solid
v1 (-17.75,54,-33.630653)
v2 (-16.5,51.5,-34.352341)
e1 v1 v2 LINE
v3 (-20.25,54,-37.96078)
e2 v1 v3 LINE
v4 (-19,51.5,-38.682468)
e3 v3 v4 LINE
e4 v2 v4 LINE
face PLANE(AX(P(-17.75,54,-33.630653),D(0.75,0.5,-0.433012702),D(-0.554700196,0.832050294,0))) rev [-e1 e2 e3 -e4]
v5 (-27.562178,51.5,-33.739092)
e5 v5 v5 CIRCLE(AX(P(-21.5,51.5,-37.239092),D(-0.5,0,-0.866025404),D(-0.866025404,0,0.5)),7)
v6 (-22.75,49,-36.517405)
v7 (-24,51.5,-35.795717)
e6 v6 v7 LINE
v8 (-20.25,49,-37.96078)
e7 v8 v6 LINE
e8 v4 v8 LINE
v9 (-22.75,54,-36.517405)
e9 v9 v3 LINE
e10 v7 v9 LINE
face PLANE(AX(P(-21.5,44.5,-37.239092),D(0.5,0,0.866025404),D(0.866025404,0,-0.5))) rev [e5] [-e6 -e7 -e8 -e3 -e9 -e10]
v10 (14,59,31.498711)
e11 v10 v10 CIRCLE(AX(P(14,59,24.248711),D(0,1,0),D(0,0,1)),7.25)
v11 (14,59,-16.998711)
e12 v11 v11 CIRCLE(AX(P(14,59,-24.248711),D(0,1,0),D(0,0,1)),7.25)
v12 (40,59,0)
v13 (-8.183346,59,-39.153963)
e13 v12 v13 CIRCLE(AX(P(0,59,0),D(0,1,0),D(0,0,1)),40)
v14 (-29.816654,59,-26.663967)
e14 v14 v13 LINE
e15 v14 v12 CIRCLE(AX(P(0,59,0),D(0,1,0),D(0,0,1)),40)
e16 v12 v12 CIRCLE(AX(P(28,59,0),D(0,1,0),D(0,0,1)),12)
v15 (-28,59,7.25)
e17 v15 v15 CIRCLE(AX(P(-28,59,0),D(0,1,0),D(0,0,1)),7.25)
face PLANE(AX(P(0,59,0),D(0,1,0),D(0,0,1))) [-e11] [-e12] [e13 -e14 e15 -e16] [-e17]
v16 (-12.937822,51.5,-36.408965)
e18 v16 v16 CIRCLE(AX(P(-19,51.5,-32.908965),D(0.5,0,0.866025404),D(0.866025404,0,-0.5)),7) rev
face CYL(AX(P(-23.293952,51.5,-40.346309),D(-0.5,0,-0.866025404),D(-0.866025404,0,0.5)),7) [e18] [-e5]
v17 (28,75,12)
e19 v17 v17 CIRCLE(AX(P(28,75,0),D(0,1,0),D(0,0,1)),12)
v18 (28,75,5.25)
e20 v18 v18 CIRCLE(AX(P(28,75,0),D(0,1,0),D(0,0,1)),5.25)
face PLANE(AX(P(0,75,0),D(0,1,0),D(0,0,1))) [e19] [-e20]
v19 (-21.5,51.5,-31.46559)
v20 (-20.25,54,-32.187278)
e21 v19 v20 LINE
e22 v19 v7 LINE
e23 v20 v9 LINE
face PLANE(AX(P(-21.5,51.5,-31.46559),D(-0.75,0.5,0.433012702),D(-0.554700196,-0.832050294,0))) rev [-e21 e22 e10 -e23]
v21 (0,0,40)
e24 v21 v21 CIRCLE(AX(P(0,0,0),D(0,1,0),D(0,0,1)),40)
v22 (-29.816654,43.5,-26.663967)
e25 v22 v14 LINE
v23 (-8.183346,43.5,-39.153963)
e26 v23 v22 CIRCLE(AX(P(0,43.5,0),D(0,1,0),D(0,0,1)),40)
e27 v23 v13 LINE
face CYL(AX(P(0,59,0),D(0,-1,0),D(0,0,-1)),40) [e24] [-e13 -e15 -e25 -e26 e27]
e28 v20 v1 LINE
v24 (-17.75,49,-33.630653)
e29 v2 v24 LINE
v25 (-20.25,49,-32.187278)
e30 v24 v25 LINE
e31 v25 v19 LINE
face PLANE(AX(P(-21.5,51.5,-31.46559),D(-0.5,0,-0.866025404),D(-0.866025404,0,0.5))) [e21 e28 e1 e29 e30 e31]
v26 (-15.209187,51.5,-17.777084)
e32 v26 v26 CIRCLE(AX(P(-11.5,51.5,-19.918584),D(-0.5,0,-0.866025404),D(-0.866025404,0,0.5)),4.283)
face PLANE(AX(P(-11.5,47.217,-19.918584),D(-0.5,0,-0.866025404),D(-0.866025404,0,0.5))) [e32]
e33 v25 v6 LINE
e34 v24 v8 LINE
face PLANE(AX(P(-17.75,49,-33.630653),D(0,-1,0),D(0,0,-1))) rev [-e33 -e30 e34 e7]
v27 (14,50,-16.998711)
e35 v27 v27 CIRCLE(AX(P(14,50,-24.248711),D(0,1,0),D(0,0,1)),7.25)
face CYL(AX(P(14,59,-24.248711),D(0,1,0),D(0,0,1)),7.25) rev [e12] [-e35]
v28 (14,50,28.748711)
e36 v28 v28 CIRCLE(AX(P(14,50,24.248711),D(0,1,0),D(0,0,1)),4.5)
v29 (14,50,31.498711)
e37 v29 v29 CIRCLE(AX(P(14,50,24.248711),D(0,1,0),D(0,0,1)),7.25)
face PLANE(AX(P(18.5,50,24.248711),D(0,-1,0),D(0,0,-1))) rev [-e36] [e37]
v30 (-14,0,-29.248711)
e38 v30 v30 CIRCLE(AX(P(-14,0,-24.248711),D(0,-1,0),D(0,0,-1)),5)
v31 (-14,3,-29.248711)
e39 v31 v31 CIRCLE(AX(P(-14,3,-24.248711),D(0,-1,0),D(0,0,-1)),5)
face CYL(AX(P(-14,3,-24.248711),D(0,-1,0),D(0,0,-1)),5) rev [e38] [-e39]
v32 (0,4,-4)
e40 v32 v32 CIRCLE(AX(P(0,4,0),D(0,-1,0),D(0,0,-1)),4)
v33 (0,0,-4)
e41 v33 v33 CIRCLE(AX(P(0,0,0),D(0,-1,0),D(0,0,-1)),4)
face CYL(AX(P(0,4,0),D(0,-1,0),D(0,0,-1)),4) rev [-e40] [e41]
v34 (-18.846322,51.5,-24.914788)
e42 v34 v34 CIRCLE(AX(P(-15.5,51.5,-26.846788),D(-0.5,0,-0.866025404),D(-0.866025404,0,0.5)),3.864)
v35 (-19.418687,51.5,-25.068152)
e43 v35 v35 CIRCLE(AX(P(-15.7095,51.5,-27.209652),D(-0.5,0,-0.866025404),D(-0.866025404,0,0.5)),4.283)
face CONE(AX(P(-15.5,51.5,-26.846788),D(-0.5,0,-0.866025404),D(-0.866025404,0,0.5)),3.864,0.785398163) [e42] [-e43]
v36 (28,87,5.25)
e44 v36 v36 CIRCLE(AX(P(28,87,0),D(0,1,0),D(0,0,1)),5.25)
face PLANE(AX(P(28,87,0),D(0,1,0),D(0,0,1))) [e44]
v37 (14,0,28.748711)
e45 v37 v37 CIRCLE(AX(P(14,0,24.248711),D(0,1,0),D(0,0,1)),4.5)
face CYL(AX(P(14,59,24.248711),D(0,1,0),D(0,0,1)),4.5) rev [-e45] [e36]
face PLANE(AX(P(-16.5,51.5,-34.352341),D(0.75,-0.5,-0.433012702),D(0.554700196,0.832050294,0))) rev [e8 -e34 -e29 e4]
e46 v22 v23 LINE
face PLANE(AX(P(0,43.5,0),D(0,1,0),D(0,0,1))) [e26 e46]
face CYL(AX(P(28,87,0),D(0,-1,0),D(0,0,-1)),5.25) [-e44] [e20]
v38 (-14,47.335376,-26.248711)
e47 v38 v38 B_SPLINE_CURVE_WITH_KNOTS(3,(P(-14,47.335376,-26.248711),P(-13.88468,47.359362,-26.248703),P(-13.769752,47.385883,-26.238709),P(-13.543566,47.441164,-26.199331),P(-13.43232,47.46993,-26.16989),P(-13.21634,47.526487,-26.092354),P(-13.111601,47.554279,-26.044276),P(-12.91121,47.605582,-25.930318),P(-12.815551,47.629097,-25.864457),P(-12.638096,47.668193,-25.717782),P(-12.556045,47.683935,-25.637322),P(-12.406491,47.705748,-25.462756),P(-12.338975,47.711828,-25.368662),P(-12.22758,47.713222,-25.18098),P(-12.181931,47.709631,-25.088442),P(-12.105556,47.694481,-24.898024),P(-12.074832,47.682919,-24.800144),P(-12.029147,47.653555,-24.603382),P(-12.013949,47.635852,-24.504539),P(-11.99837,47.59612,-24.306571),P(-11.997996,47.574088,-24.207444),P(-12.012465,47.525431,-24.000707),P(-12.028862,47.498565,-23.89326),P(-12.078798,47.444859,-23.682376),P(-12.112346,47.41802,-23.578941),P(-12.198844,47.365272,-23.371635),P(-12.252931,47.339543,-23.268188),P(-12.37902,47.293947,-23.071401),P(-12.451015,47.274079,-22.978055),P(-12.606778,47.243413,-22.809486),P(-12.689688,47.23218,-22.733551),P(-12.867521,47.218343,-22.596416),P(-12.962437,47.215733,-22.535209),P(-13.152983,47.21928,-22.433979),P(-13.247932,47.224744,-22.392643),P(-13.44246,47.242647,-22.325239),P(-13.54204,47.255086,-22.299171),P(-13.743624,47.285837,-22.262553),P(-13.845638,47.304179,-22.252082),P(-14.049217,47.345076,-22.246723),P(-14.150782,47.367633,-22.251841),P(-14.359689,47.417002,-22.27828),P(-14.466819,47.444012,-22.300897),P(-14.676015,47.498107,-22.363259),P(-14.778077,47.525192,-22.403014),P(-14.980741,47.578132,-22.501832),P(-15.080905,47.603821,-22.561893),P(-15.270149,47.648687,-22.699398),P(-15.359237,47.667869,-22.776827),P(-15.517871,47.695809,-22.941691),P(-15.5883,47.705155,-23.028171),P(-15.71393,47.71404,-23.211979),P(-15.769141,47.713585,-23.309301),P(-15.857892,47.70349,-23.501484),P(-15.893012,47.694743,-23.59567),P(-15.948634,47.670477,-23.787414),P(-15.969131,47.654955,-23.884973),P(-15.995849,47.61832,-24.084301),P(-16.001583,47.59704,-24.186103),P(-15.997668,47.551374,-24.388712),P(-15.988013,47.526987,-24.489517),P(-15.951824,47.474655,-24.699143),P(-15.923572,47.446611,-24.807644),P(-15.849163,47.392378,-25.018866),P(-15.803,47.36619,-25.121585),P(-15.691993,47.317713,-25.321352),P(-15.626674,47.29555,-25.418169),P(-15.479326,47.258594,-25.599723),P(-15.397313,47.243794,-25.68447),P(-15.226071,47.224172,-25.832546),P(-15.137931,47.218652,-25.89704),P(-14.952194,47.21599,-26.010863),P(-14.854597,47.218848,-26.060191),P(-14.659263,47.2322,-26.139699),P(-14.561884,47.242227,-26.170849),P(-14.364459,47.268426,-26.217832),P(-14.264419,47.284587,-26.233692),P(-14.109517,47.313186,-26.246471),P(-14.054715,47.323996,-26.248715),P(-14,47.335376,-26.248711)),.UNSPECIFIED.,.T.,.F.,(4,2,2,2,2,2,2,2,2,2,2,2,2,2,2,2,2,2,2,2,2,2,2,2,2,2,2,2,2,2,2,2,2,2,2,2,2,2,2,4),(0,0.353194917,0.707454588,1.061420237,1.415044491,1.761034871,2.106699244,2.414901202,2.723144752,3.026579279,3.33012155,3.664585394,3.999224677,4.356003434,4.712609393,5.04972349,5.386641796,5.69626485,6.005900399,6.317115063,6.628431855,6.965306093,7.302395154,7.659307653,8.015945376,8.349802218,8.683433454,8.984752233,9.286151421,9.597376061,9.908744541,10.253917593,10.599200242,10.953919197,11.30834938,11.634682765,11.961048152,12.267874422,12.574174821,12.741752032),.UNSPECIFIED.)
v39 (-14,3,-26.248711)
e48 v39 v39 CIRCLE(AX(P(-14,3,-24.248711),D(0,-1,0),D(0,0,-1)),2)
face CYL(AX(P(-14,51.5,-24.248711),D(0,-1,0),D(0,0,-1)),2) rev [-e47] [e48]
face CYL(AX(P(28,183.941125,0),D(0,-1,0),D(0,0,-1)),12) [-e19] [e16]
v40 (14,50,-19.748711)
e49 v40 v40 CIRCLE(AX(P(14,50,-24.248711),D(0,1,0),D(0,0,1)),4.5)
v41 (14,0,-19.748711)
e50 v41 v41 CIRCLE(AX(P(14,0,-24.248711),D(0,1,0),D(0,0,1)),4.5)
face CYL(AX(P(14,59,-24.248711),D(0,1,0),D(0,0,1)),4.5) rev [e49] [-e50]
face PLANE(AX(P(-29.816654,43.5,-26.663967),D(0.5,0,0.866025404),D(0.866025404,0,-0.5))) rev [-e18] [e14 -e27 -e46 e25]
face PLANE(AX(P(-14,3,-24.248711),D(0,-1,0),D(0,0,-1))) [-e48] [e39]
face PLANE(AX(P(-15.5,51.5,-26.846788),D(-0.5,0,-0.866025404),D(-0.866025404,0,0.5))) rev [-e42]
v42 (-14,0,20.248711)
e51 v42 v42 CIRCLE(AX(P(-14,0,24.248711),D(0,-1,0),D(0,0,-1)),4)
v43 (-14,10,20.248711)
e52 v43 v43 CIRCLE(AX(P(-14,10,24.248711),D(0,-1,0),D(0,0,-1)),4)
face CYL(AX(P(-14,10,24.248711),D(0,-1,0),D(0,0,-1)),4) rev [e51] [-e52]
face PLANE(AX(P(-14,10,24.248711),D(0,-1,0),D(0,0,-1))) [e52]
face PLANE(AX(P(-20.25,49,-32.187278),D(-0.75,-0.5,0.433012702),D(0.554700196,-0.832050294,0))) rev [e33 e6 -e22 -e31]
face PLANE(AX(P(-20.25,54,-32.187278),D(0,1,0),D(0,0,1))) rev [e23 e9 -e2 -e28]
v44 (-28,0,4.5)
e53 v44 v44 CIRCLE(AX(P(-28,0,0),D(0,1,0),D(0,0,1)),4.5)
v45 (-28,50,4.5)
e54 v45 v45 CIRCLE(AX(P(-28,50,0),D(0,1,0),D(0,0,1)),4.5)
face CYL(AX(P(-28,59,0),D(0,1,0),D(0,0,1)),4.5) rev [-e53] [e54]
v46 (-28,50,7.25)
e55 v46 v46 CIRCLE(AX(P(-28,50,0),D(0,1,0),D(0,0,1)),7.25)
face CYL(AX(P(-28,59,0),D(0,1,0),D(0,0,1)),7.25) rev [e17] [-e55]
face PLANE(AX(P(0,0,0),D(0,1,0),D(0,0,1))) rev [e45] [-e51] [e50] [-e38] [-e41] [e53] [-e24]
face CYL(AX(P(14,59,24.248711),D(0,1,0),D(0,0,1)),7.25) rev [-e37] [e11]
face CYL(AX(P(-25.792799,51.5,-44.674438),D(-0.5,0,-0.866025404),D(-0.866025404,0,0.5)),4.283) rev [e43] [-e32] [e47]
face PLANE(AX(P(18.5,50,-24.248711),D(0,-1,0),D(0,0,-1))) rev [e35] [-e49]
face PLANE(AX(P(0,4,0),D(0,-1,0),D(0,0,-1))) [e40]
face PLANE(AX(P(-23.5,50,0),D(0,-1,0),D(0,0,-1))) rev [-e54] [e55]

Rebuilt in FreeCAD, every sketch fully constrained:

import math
import FreeCAD as App
import Part
import Sketcher
Q = App.Units.Quantity


def add_polygon(sketch, points):
    """Adds a closed chain of lines whose ends are joined by coincident constraints."""
    first, n = sketch.GeometryCount, len(points)
    for a, b in zip(points, points[1:] + points[:1]):
        sketch.addGeometry(Part.LineSegment(App.Vector(*a, 0), App.Vector(*b, 0)), False)
    for i in range(n):
        sketch.addConstraint(Sketcher.Constraint("Coincident", first + i, 2, first + (i + 1) % n, 1))

doc = App.newDocument("Part")
body = doc.addObject("PartDesign::Body", "Body")

sketch1 = body.newObject("Sketcher::SketchObject", "Sketch")
sketch1.AttachmentSupport = (doc.getObject("XZ_Plane"), [""])
sketch1.MapMode = "FlatFace"
sketch1.addGeometry(Part.Circle(App.Vector(0, 0, 0), App.Vector(0, 0, 1), 40), False)
sketch1.addConstraint([
    Sketcher.Constraint("Coincident", 0, 3, -1, 1),
    Sketcher.Constraint("Diameter", 0, 80.0),
])
pad1 = body.newObject("PartDesign::Pad", "Pad")
pad1.Profile = sketch1
pad1.Length = 59
pad1.Reversed = True

sketch2 = body.newObject("Sketcher::SketchObject", "Sketch001")
sketch2.AttachmentSupport = (doc.getObject("XZ_Plane"), [""])
sketch2.MapMode = "FlatFace"
sketch2.AttachmentOffset = App.Placement(App.Vector(0, 0, -59), App.Rotation())
sketch2.addGeometry(Part.Circle(App.Vector(28, 0, 0), App.Vector(0, 0, 1), 12), False)
sketch2.addConstraint([
    Sketcher.Constraint("PointOnObject", 0, 3, -1),
    Sketcher.Constraint("Diameter", 0, 24.0),
    Sketcher.Constraint("DistanceX", -1, 1, 0, 3, 28.0),
])
pad2 = body.newObject("PartDesign::Pad", "Pad001")
pad2.Profile = sketch2
pad2.Length = 16
pad2.Reversed = True

sketch3 = body.newObject("Sketcher::SketchObject", "Sketch002")
sketch3.AttachmentSupport = (doc.getObject("XZ_Plane"), [""])
sketch3.MapMode = "FlatFace"
sketch3.AttachmentOffset = App.Placement(App.Vector(0, 0, -75), App.Rotation())
sketch3.addGeometry(Part.Circle(App.Vector(28, 0, 0), App.Vector(0, 0, 1), 5.25), False)
sketch3.addConstraint([
    Sketcher.Constraint("PointOnObject", 0, 3, -1),
    Sketcher.Constraint("Diameter", 0, 10.5),
    Sketcher.Constraint("DistanceX", -1, 1, 0, 3, 28.0),
])
pad3 = body.newObject("PartDesign::Pad", "Pad002")
pad3.Profile = sketch3
pad3.Length = 12
pad3.Reversed = True

sketch4 = body.newObject("Sketcher::SketchObject", "Sketch003")
sketch4.AttachmentSupport = (doc.getObject("XZ_Plane"), [""])
sketch4.MapMode = "FlatFace"
sketch4.AttachmentOffset = App.Placement(App.Vector(0, 0, -59), App.Rotation())
sketch4.addGeometry(Part.Circle(App.Vector(-28, 0, 0), App.Vector(0, 0, 1), 4.5), False)
sketch4.addConstraint([
    Sketcher.Constraint("PointOnObject", 0, 3, -1),
    Sketcher.Constraint("Diameter", 0, 9.0),
    Sketcher.Constraint("DistanceX", 0, 3, -1, 1, 28.0),
])
doc.recompute()
hole = body.newObject("PartDesign::Hole", "Hole")
hole.Profile = sketch4
hole.ThreadType = "None"
hole.Diameter = 9
hole.DepthType = "Dimension"
hole.Depth = 59.001
hole.DrillPoint = "Flat"
hole.HoleCutType = "Counterbore"
hole.HoleCutDiameter = 14.5
hole.HoleCutDepth = 9
hole.Reversed = True
doc.recompute()

polarpattern = body.newObject("PartDesign::PolarPattern", "PolarPattern")
polarpattern.Originals = [hole]
polarpattern.Axis = (doc.getObject("Y_Axis"), [""])
polarpattern.Angle = 360
polarpattern.Occurrences = 3
body.Tip = polarpattern

sketch5 = body.newObject("Sketcher::SketchObject", "Sketch004")
sketch5.AttachmentSupport = (doc.getObject("XZ_Plane"), [""])
sketch5.MapMode = "FlatFace"
sketch5.addGeometry(Part.Circle(App.Vector(0, 0, 0), App.Vector(0, 0, 1), 4), False)
sketch5.addConstraint([
    Sketcher.Constraint("Coincident", 0, 3, -1, 1),
    Sketcher.Constraint("Diameter", 0, 8.0),
])
pocket1 = body.newObject("PartDesign::Pocket", "Pocket")
pocket1.Profile = sketch5
pocket1.Length = 4

sketch6 = body.newObject("Sketcher::SketchObject", "Sketch005")
sketch6.AttachmentSupport = (doc.getObject("XZ_Plane"), [""])
sketch6.MapMode = "FlatFace"
sketch6.addGeometry(Part.Circle(App.Vector(-14, 24.248711, 0), App.Vector(0, 0, 1), 4), False)
sketch6.addConstraint([
    Sketcher.Constraint("Diameter", 0, 8.0),
    Sketcher.Constraint("DistanceX", 0, 3, -1, 1, 14.0),
    Sketcher.Constraint("DistanceY", -1, 1, 0, 3, 24.248711),
])
pocket2 = body.newObject("PartDesign::Pocket", "Pocket001")
pocket2.Profile = sketch6
pocket2.Length = 10

sketch7 = body.newObject("Sketcher::SketchObject", "Sketch006")
sketch7.AttachmentSupport = (doc.getObject("XZ_Plane"), [""])
sketch7.MapMode = "FlatFace"
sketch7.addGeometry(Part.Circle(App.Vector(-14, -24.248711, 0), App.Vector(0, 0, 1), 5), False)
sketch7.addConstraint([
    Sketcher.Constraint("Diameter", 0, 10.0),
    Sketcher.Constraint("DistanceX", 0, 3, -1, 1, 14.0),
    Sketcher.Constraint("DistanceY", 0, 3, -1, 1, 24.248711),
])
pocket3 = body.newObject("PartDesign::Pocket", "Pocket002")
pocket3.Profile = sketch7
pocket3.Length = 3

sketch8 = body.newObject("Sketcher::SketchObject", "Sketch007")
sketch8.AttachmentSupport = (doc.getObject("XZ_Plane"), [""])
sketch8.MapMode = "FlatFace"
sketch8.AttachmentOffset = App.Placement(App.Vector(0, 0, -3), App.Rotation())
sketch8.addGeometry(Part.Circle(App.Vector(-14, -24.248711, 0), App.Vector(0, 0, 1), 2), False)
sketch8.addConstraint([
    Sketcher.Constraint("Diameter", 0, 4.0),
    Sketcher.Constraint("DistanceX", 0, 3, -1, 1, 14.0),
    Sketcher.Constraint("DistanceY", 0, 3, -1, 1, 24.248711),
])
pocket4 = body.newObject("PartDesign::Pocket", "Pocket003")
pocket4.Profile = sketch8
pocket4.Length = 48.5

sketch9 = body.newObject("Sketcher::SketchObject", "Sketch008")
sketch9.AttachmentSupport = (doc.getObject("XZ_Plane"), [""])
sketch9.MapMode = "FlatFace"
sketch9.AttachmentOffset = App.Placement(App.Vector(0, 0, -59), App.Rotation())
sketch9.addGeometry([
    Part.LineSegment(App.Vector(-29.816654, -26.663967, 0), App.Vector(-8.183346, -39.153963, 0)),
    Part.ArcOfCircle(Part.Circle(App.Vector(0, 0, 0), App.Vector(0, 0, 1), 40), math.radians(-138.194872), math.radians(-101.805128)),
], False)
sketch9.addConstraint([
    Sketcher.Constraint("Coincident", 0, 1, 1, 1),
    Sketcher.Constraint("Coincident", 1, 2, 0, 2),
    Sketcher.Constraint("Coincident", 1, 3, -1, 1),
    Sketcher.Constraint("Radius", 1, 40.0),
    Sketcher.Constraint("Angle", 0, Q("-30 deg")),
    Sketcher.Constraint("Distance", 0, 24.979992),
])
pocket5 = body.newObject("PartDesign::Pocket", "Pocket004")
pocket5.Profile = sketch9
pocket5.Length = 15.5
pocket5.Reversed = True

sketch10 = body.newObject("Sketcher::SketchObject", "Sketch009")
sketch10.Placement = App.Placement(App.Vector(0, 0, 0), App.Rotation(App.Vector(-0.5, 0, -0.866025404), App.Vector(0, 1, 0), App.Vector(0.866025404, 0, -0.5), "ZXY"))
add_polygon(sketch10, [(23, 51.5), (23, 47.217), (38, 47.217), (38, 51.5)])
sketch10.addGeometry(Part.LineSegment(App.Vector(38, 51.5, 0), App.Vector(23, 51.5, 0)), True)
sketch10.addConstraint([
    Sketcher.Constraint("Vertical", 0),
    Sketcher.Constraint("Horizontal", 1),
    Sketcher.Constraint("Vertical", 2),
    Sketcher.Constraint("Horizontal", 3),
    Sketcher.Constraint("Horizontal", 4),
    Sketcher.Constraint("Coincident", 4, 1, 2, 2),
    Sketcher.Constraint("Vertical", 0, 2, 4, 2),
    Sketcher.Constraint("DistanceX", 1, 1, 1, 2, 15.0),
    Sketcher.Constraint("DistanceX", -1, 1, 0, 2, 23.0),
    Sketcher.Constraint("DistanceY", -1, 1, 2, 2, 51.5),
    Sketcher.Constraint("DistanceY", 0, 2, 0, 1, 4.283),
])
groove = body.newObject("PartDesign::Groove", "Groove")
groove.Profile = sketch10
groove.ReferenceAxis = (sketch10, ["Axis0"])
groove.Angle = 360

sketch11 = body.newObject("Sketcher::SketchObject", "Sketch010")
sketch11.Placement = App.Placement(App.Vector(0, 0, 0), App.Rotation(App.Vector(-0.5, 0, -0.866025404), App.Vector(0, 1, 0), App.Vector(0.866025404, 0, -0.5), "ZXY"))
add_polygon(sketch11, [(38, 47.217), (38, 44.5), (43, 44.5), (43, 51.5), (31, 51.5), (31, 47.636), (31.419, 47.217)])
sketch11.addGeometry(Part.LineSegment(App.Vector(43, 51.5, 0), App.Vector(31, 51.5, 0)), True)
sketch11.addConstraint([
    Sketcher.Constraint("Vertical", 0),
    Sketcher.Constraint("Horizontal", 1),
    Sketcher.Constraint("Vertical", 2),
    Sketcher.Constraint("Horizontal", 3),
    Sketcher.Constraint("Vertical", 4),
    Sketcher.Constraint("Horizontal", 6),
    Sketcher.Constraint("Horizontal", 7),
    Sketcher.Constraint("Coincident", 7, 1, 2, 2),
    Sketcher.Constraint("Vertical", 4, 2, 7, 2),
    Sketcher.Constraint("DistanceX", 1, 1, 1, 2, 5.0),
    Sketcher.Constraint("DistanceX", 3, 2, 3, 1, 12.0),
    Sketcher.Constraint("DistanceY", 2, 1, 2, 2, 7.0),
    Sketcher.Constraint("Angle", 5, Q("-45 deg")),
    Sketcher.Constraint("DistanceX", -1, 1, 0, 2, 38.0),
    Sketcher.Constraint("DistanceY", -1, 1, 0, 2, 44.5),
    Sketcher.Constraint("DistanceX", 6, 1, 6, 2, 6.581),
    Sketcher.Constraint("DistanceY", 0, 2, 0, 1, 2.717),
])
revolution = body.newObject("PartDesign::Revolution", "Revolution")
revolution.Profile = sketch11
revolution.ReferenceAxis = (sketch11, ["Axis0"])
revolution.Angle = 360

sketch12 = body.newObject("Sketcher::SketchObject", "Sketch011")
sketch12.Placement = App.Placement(App.Vector(-21.5, 0, -37.239092), App.Rotation(App.Vector(-0.866025404, 0, 0.5), App.Vector(0, 1, 0), App.Vector(-0.5, 0, -0.866025404), "ZXY"))
add_polygon(sketch12, [(2.886751, 51.5), (1.443376, 54), (-1.443376, 54), (-2.886751, 51.5), (-1.443376, 49), (1.443376, 49)])
sketch12.addConstraint([
    Sketcher.Constraint("Horizontal", 1),
    Sketcher.Constraint("Horizontal", 4),
    Sketcher.Constraint("Symmetric", 2, 2, 5, 2, -2),
    Sketcher.Constraint("Parallel", 0, 3),
    Sketcher.Constraint("Parallel", 2, 5),
    Sketcher.Constraint("Vertical", 1, 2, 3, 2),
    Sketcher.Constraint("Vertical", 0, 2, 4, 2),
    Sketcher.Constraint("Angle", 0, Q("120 deg")),
    Sketcher.Constraint("DistanceY", -1, 1, 0, 2, 54.0),
    Sketcher.Constraint("DistanceY", -1, 1, 3, 2, 49.0),
    Sketcher.Constraint("DistanceX", 1, 2, 1, 1, 2.886751),
])
pocket6 = body.newObject("PartDesign::Pocket", "Pocket005")
pocket6.Profile = sketch12
pocket6.Length = 5

doc.recompute()
